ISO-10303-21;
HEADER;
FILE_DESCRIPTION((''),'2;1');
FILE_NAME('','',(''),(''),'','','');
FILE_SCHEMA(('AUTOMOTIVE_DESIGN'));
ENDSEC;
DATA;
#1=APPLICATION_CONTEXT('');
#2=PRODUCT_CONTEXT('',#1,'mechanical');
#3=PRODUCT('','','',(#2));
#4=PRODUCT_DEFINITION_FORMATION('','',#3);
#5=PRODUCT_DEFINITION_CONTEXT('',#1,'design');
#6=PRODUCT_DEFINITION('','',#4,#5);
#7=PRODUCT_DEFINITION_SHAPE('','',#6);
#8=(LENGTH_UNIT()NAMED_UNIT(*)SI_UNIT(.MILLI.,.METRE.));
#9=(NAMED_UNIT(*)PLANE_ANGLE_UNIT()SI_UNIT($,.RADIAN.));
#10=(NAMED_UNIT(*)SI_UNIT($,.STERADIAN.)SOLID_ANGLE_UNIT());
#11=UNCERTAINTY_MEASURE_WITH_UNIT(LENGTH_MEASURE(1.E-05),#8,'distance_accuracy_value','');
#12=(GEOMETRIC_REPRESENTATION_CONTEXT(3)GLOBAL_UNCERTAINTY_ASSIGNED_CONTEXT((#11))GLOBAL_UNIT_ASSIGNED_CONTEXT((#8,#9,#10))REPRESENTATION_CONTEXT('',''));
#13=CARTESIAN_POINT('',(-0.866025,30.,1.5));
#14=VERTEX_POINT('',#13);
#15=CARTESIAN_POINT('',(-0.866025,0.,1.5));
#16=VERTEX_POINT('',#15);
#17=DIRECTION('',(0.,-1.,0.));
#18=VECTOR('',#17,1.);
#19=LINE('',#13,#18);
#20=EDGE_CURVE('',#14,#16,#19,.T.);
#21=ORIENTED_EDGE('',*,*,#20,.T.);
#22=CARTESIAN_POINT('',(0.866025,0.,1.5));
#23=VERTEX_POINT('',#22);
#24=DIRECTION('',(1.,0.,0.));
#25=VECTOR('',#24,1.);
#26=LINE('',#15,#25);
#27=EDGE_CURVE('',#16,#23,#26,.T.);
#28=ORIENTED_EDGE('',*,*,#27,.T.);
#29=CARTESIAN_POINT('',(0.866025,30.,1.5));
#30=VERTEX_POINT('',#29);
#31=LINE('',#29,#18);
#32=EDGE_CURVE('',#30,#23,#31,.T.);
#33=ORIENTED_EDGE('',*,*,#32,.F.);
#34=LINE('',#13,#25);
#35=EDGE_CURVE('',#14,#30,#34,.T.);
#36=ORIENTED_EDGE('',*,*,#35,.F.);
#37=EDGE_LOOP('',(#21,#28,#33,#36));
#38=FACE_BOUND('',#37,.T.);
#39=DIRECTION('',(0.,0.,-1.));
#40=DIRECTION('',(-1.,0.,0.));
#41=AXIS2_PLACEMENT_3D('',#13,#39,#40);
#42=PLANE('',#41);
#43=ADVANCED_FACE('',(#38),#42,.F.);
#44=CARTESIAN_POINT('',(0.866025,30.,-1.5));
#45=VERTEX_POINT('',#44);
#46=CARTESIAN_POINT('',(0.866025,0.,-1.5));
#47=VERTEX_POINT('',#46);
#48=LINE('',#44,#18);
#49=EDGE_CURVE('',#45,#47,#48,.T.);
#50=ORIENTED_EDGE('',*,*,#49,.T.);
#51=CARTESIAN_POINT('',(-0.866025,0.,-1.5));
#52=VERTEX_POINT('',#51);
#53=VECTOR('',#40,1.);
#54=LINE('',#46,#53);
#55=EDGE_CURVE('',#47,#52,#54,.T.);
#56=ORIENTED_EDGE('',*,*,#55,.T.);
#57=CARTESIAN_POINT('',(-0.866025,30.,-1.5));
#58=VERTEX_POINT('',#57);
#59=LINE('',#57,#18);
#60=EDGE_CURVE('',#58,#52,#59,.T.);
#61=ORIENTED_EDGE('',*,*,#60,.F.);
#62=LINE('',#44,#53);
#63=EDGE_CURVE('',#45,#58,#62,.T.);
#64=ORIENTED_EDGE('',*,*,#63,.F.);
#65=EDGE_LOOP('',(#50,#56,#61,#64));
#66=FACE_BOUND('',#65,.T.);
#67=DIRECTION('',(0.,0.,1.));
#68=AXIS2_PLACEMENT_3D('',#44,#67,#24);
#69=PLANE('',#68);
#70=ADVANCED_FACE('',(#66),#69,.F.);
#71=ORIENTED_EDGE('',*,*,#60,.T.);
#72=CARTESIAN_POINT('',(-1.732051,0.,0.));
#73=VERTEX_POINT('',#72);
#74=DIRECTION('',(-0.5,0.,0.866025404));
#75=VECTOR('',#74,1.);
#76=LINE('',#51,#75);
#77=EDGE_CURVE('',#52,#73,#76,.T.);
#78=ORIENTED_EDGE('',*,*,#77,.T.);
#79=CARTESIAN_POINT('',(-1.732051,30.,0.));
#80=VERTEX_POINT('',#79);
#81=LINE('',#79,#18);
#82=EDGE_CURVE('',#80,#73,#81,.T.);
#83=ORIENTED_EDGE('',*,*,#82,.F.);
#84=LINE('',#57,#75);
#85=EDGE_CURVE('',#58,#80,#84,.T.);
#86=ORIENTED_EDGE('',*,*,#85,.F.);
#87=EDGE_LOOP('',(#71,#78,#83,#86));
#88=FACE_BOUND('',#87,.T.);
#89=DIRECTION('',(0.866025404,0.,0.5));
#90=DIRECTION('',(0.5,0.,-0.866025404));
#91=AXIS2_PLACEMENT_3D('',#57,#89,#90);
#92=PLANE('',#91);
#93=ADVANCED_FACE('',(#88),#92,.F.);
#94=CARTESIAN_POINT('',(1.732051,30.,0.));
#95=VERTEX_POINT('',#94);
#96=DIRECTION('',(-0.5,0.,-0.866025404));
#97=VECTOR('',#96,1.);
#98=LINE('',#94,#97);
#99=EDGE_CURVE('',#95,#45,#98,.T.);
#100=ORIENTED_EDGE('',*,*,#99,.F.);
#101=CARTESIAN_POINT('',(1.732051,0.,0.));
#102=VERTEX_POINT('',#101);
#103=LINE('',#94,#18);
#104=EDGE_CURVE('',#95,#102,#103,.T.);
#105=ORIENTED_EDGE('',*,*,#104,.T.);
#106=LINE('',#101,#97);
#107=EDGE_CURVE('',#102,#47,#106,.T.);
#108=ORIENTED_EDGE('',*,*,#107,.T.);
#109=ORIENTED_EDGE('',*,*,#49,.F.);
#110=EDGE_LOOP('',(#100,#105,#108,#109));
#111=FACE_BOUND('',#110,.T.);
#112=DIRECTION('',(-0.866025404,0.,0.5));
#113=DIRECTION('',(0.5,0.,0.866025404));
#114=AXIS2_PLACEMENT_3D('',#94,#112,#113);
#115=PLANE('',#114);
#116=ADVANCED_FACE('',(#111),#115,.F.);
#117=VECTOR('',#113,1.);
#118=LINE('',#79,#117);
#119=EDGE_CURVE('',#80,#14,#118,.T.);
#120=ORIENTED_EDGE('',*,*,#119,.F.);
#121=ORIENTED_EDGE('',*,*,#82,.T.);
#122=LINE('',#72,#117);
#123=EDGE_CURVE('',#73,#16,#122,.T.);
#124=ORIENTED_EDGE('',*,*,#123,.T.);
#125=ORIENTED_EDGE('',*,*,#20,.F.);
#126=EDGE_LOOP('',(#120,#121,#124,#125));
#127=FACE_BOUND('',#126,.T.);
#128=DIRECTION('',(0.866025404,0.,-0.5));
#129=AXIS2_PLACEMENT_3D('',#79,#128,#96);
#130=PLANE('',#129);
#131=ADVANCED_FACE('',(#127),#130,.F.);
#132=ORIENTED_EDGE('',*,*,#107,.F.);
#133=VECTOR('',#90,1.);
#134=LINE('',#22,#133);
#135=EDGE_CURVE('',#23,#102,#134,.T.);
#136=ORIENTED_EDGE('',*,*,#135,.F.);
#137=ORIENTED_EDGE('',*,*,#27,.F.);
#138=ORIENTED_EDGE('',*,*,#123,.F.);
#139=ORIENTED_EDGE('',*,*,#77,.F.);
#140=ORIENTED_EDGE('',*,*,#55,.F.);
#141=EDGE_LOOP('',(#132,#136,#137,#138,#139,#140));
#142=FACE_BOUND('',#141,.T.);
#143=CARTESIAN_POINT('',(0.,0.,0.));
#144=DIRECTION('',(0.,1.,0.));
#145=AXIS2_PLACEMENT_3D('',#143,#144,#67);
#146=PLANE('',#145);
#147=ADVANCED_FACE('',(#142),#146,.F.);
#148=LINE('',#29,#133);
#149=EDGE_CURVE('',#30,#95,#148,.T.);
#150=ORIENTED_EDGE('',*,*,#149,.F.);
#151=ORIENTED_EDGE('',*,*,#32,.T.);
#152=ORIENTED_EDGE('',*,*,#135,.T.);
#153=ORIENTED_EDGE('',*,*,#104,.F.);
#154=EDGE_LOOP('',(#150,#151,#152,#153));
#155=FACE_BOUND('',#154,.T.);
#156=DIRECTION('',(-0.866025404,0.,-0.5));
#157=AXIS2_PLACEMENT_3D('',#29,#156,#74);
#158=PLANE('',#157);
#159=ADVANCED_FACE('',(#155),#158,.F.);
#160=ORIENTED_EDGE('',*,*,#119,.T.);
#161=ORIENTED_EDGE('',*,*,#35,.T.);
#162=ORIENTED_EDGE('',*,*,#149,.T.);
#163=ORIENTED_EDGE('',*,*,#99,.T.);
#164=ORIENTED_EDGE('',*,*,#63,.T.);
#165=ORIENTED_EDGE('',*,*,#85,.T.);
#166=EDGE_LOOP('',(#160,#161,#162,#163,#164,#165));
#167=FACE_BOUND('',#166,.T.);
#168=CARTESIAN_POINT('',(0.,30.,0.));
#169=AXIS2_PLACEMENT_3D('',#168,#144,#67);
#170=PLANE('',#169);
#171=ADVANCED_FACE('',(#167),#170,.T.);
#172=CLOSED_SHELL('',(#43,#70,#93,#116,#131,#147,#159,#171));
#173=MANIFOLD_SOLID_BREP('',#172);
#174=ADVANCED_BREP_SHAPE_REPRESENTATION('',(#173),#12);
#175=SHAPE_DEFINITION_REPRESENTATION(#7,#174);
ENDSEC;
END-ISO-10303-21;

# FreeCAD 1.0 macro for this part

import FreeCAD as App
import Part
import Sketcher
Q = App.Units.Quantity

doc = App.newDocument("Part")
body = doc.addObject("PartDesign::Body", "Body")

# Sketch on XZ plane
sketch1 = body.newObject("Sketcher::SketchObject", "Sketch")
sketch1.AttachmentSupport = (doc.getObject("XZ_Plane"), [""])
sketch1.MapMode = "FlatFace"
sketch1.addGeometry([
    Part.LineSegment(App.Vector(1.7, 0, 0), App.Vector(0.9, -1.5, 0)),  # 0
    Part.LineSegment(App.Vector(0.9, -1.5, 0), App.Vector(-0.9, -1.5, 0)),  # 1
    Part.LineSegment(App.Vector(-0.9, -1.5, 0), App.Vector(-1.7, 0, 0)),  # 2
    Part.LineSegment(App.Vector(-1.7, 0, 0), App.Vector(-0.9, 1.5, 0)),  # 3
    Part.LineSegment(App.Vector(-0.9, 1.5, 0), App.Vector(0.9, 1.5, 0)),  # 4
    Part.LineSegment(App.Vector(0.9, 1.5, 0), App.Vector(1.7, 0, 0)),  # 5
], False)
sketch1.addConstraint([
    Sketcher.Constraint("Coincident", 0, 2, 1, 1),
    Sketcher.Constraint("Coincident", 1, 2, 2, 1),
    Sketcher.Constraint("Coincident", 2, 2, 3, 1),
    Sketcher.Constraint("Coincident", 3, 2, 4, 1),
    Sketcher.Constraint("Coincident", 4, 2, 5, 1),
    Sketcher.Constraint("Coincident", 5, 2, 0, 1),
    Sketcher.Constraint("Horizontal", 1),
    Sketcher.Constraint("Horizontal", 4),
    Sketcher.Constraint("Symmetric", 0, 2, 3, 2, -1, 1),
    Sketcher.Constraint("Symmetric", 2, 2, 5, 2, -1, 1),
    Sketcher.Constraint("PointOnObject", 2, 2, -1),
    Sketcher.Constraint("Parallel", 2, 5),
    Sketcher.Constraint("Vertical", 1, 2, 3, 2),
    Sketcher.Constraint("Angle", 0, Q("-120 deg")),
    Sketcher.Constraint("DistanceY", 1, 2, 3, 2, Q("3 mm")),
    Sketcher.Constraint("DistanceX", 1, 2, 1, 1, Q("1.732051 mm")),
])
pad1 = body.newObject("PartDesign::Pad", "Pad")
pad1.Profile = sketch1
pad1.Length = 30
pad1.Reversed = True

doc.recompute()
